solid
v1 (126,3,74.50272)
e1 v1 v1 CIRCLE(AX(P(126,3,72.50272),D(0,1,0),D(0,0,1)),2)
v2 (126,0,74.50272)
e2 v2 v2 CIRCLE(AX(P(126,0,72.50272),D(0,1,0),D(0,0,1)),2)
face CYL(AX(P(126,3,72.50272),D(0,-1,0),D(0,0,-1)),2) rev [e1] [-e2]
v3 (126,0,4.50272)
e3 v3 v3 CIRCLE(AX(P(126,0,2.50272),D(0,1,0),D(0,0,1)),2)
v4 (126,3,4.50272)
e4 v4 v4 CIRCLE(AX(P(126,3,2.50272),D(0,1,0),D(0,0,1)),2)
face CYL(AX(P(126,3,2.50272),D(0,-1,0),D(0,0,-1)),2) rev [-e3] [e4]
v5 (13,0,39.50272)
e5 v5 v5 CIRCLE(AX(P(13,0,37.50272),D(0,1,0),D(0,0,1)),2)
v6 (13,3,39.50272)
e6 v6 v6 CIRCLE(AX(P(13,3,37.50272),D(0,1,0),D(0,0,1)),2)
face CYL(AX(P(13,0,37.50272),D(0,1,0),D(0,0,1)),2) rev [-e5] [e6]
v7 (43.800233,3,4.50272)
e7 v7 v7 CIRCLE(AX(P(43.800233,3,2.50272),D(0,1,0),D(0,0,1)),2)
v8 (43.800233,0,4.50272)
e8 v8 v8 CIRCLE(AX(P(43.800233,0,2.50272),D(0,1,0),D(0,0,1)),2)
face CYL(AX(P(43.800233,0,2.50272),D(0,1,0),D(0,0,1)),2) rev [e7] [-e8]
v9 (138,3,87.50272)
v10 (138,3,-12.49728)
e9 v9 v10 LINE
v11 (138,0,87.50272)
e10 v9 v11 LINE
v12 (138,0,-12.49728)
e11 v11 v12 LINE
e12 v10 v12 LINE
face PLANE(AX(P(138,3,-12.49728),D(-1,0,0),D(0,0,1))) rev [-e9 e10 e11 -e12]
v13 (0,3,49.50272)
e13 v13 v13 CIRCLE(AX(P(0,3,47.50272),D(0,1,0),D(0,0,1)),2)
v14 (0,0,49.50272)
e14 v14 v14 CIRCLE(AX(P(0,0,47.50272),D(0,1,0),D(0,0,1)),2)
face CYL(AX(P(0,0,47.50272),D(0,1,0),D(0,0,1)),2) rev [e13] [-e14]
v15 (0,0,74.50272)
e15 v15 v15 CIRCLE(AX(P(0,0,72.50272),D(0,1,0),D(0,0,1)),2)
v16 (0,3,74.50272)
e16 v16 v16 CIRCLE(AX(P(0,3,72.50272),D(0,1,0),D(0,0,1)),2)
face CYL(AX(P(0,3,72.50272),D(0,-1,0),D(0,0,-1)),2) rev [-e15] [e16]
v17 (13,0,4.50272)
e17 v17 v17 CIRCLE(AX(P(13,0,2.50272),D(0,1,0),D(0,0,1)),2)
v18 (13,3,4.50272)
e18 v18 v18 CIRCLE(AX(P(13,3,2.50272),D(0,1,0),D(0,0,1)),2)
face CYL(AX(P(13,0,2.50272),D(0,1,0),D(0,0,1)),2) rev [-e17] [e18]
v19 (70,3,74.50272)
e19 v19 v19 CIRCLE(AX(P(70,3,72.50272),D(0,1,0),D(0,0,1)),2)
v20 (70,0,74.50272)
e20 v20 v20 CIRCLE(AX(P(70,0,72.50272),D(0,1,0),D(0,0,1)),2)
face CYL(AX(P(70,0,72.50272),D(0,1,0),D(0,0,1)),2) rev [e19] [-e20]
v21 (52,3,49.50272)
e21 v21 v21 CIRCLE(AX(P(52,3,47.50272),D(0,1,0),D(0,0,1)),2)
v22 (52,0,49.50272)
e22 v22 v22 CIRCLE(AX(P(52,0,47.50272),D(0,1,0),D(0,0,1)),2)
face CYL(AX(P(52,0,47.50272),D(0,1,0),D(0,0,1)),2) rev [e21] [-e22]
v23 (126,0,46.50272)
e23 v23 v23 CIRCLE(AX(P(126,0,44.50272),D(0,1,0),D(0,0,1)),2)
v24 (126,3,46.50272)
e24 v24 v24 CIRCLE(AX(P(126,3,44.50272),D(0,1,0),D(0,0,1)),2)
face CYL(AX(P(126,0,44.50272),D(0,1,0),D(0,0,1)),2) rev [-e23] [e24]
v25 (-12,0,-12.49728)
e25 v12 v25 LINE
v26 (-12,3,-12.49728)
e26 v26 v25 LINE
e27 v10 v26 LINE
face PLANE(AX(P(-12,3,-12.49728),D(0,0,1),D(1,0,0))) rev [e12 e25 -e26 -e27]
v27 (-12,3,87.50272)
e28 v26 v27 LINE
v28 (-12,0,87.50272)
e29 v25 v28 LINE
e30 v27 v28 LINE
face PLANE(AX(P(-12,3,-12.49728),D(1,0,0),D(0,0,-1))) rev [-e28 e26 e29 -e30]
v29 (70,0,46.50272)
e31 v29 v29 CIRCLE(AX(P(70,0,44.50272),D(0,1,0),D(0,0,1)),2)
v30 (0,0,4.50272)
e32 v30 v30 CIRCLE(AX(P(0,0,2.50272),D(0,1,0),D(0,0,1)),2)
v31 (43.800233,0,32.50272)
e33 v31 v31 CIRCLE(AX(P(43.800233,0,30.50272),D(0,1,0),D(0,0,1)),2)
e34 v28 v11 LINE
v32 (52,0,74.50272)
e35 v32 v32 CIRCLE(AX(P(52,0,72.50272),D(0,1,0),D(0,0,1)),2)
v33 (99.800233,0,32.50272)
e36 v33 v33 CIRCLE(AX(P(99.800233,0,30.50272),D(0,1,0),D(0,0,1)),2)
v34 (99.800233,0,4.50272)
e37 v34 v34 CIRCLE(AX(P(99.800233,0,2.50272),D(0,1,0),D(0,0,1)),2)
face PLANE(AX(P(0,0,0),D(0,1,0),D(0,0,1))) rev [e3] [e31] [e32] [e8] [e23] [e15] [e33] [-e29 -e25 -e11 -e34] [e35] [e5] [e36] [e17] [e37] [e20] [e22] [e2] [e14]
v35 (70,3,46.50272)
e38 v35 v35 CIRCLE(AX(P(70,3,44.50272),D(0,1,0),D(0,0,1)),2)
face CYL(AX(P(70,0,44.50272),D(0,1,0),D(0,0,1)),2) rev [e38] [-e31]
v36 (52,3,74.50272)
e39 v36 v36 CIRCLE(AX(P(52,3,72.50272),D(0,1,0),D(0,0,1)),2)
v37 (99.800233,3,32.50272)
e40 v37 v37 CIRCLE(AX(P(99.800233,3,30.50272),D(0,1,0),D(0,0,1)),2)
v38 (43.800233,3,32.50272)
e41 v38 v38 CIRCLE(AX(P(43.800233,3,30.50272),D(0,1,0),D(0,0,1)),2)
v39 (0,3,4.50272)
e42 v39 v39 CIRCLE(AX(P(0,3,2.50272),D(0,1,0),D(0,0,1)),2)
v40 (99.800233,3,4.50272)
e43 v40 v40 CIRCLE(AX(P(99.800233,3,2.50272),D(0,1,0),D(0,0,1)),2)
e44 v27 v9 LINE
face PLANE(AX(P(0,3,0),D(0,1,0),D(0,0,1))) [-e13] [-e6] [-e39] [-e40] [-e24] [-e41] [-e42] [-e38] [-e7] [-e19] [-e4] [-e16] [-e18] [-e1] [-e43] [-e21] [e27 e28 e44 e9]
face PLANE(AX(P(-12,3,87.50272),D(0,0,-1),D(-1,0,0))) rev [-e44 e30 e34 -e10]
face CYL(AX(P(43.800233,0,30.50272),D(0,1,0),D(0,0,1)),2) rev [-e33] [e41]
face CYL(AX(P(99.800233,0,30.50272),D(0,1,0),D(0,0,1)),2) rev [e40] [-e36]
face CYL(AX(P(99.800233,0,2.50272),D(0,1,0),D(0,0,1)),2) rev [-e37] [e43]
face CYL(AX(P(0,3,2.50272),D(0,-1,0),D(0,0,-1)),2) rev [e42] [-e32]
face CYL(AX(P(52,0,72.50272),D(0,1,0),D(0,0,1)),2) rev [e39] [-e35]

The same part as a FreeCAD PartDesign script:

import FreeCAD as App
import Part
import Sketcher

V = App.Vector
Q = App.Units.Quantity

doc = App.newDocument("Part")
body = doc.addObject("PartDesign::Body", "Body")

# Sketch on XZ plane
sketch1 = doc.addObject("Sketcher::SketchObject", "Sketch")
body.addObject(sketch1)
sketch1.AttachmentSupport = (doc.XZ_Plane, [""])
sketch1.MapMode = "FlatFace"
sketch1.addGeometry([
    Part.LineSegment(V(-12, -12.5, 0), V(-12, 87.5, 0)),  # 0
    Part.LineSegment(V(-12, 87.5, 0), V(138, 87.5, 0)),  # 1
    Part.LineSegment(V(138, 87.5, 0), V(138, -12.5, 0)),  # 2
    Part.LineSegment(V(138, -12.5, 0), V(-12, -12.5, 0)),  # 3
    Part.Circle(V(0, 72.5, 0), V(0, 0, 1), 2),  # 4
    Part.Circle(V(126, 72.5, 0), V(0, 0, 1), 2),  # 5
    Part.Circle(V(0, 2.5, 0), V(0, 0, 1), 2),  # 6
    Part.Circle(V(126, 2.5, 0), V(0, 0, 1), 2),  # 7
], False)
sketch1.addConstraint([
    Sketcher.Constraint("Coincident", 0, 2, 1, 1),
    Sketcher.Constraint("Coincident", 1, 2, 2, 1),
    Sketcher.Constraint("Coincident", 2, 2, 3, 1),
    Sketcher.Constraint("Coincident", 3, 2, 0, 1),
    Sketcher.Constraint("Vertical", 0),
    Sketcher.Constraint("Horizontal", 1),
    Sketcher.Constraint("Vertical", 2),
    Sketcher.Constraint("Horizontal", 3),
    Sketcher.Constraint("Equal", 4, 5),
    Sketcher.Constraint("Equal", 5, 6),
    Sketcher.Constraint("Equal", 6, 7),
    Sketcher.Constraint("PointOnObject", 4, 3, -2),
    Sketcher.Constraint("PointOnObject", 6, 3, -2),
    Sketcher.Constraint("Horizontal", 4, 3, 5, 3),
    Sketcher.Constraint("Horizontal", 6, 3, 7, 3),
    Sketcher.Constraint("Vertical", 5, 3, 7, 3),
    Sketcher.Constraint("Diameter", 4, Q("4 mm")),
    Sketcher.Constraint("DistanceX", 1, 1, 1, 2, Q("150 mm")),
    Sketcher.Constraint("DistanceY", 0, 1, 0, 2, Q("100 mm")),
    Sketcher.Constraint("DistanceX", -1, 1, 5, 3, Q("126 mm")),
    Sketcher.Constraint("DistanceX", 0, 2, -1, 1, Q("12 mm")),
    Sketcher.Constraint("DistanceY", 6, 3, 4, 3, Q("70 mm")),
    Sketcher.Constraint("DistanceY", 4, 3, 0, 2, Q("15 mm")),
    Sketcher.Constraint("DistanceY", -1, 1, 4, 3, Q("72.50272 mm")),
])
pad1 = doc.addObject("PartDesign::Pad", "Pad")
body.addObject(pad1)
pad1.Profile = sketch1
pad1.Length = 3
pad1.Reversed = True

# Sketch on XZ plane
sketch2 = doc.addObject("Sketcher::SketchObject", "Sketch001")
body.addObject(sketch2)
sketch2.AttachmentSupport = (doc.XZ_Plane, [""])
sketch2.MapMode = "FlatFace"
sketch2.AttachmentOffset = App.Placement(V(0, 0, -3), App.Rotation())
sketch2.addGeometry([
    Part.Circle(V(13, 2.5, 0), V(0, 0, 1), 2),  # 0
    Part.Circle(V(13, 37.5, 0), V(0, 0, 1), 2),  # 1
    Part.Circle(V(0, 47.5, 0), V(0, 0, 1), 2),  # 2
    Part.Circle(V(0, 72.5, 0), V(0, 0, 1), 2),  # 3
    Part.Circle(V(52, 47.5, 0), V(0, 0, 1), 2),  # 4
    Part.Circle(V(52, 72.5, 0), V(0, 0, 1), 2),  # 5
    Part.Circle(V(43.8, 2.5, 0), V(0, 0, 1), 2),  # 6
    Part.Circle(V(43.8, 30.5, 0), V(0, 0, 1), 2),  # 7
    Part.Circle(V(99.8, 2.5, 0), V(0, 0, 1), 2),  # 8
    Part.Circle(V(99.8, 30.5, 0), V(0, 0, 1), 2),  # 9
    Part.Circle(V(70, 44.5, 0), V(0, 0, 1), 2),  # 10
    Part.Circle(V(70, 72.5, 0), V(0, 0, 1), 2),  # 11
    Part.Circle(V(126, 44.5, 0), V(0, 0, 1), 2),  # 12
], False)
sketch2.addConstraint([
    Sketcher.Constraint("Equal", 0, 1),
    Sketcher.Constraint("Equal", 1, 2),
    Sketcher.Constraint("Equal", 2, 3),
    Sketcher.Constraint("Equal", 3, 4),
    Sketcher.Constraint("Equal", 4, 5),
    Sketcher.Constraint("Equal", 5, 6),
    Sketcher.Constraint("Equal", 6, 7),
    Sketcher.Constraint("Equal", 7, 8),
    Sketcher.Constraint("Equal", 8, 9),
    Sketcher.Constraint("Equal", 9, 10),
    Sketcher.Constraint("Equal", 10, 11),
    Sketcher.Constraint("Equal", 11, 12),
    Sketcher.Constraint("PointOnObject", 2, 3, -2),
    Sketcher.Constraint("PointOnObject", 3, 3, -2),
    Sketcher.Constraint("Horizontal", 2, 3, 4, 3),
    Sketcher.Constraint("Horizontal", 3, 3, 5, 3),
    Sketcher.Constraint("Horizontal", 0, 3, 6, 3),
    Sketcher.Constraint("Horizontal", 6, 3, 8, 3),
    Sketcher.Constraint("Horizontal", 7, 3, 9, 3),
    Sketcher.Constraint("Horizontal", 5, 3, 11, 3),
    Sketcher.Constraint("Horizontal", 10, 3, 12, 3),
    Sketcher.Constraint("Vertical", 0, 3, 1, 3),
    Sketcher.Constraint("Vertical", 4, 3, 5, 3),
    Sketcher.Constraint("Vertical", 6, 3, 7, 3),
    Sketcher.Constraint("Vertical", 8, 3, 9, 3),
    Sketcher.Constraint("Vertical", 10, 3, 11, 3),
    Sketcher.Constraint("Diameter", 0, Q("4 mm")),
    Sketcher.Constraint("DistanceX", -1, 1, 0, 3, Q("13 mm")),
    Sketcher.Constraint("DistanceX", -1, 1, 4, 3, Q("52 mm")),
    Sketcher.Constraint("DistanceX", -1, 1, 10, 3, Q("70 mm")),
    Sketcher.Constraint("DistanceX", -1, 1, 12, 3, Q("126 mm")),
    Sketcher.Constraint("DistanceY", 0, 3, 1, 3, Q("35 mm")),
    Sketcher.Constraint("DistanceY", 1, 3, 2, 3, Q("10 mm")),
    Sketcher.Constraint("DistanceY", 2, 3, 3, 3, Q("25 mm")),
    Sketcher.Constraint("DistanceY", 7, 3, 4, 3, Q("17 mm")),
    Sketcher.Constraint("DistanceX", 6, 3, 8, 3, Q("56 mm")),
    Sketcher.Constraint("DistanceY", 10, 3, 4, 3, Q("3 mm")),
    Sketcher.Constraint("DistanceY", -1, 1, 0, 3, Q("2.50272 mm")),
    Sketcher.Constraint("DistanceX", -1, 1, 6, 3, Q("43.800233 mm")),
])
pocket1 = doc.addObject("PartDesign::Pocket", "Pocket")
body.addObject(pocket1)
pocket1.Profile = sketch2
pocket1.Length = 3
pocket1.Reversed = True

doc.recompute()
